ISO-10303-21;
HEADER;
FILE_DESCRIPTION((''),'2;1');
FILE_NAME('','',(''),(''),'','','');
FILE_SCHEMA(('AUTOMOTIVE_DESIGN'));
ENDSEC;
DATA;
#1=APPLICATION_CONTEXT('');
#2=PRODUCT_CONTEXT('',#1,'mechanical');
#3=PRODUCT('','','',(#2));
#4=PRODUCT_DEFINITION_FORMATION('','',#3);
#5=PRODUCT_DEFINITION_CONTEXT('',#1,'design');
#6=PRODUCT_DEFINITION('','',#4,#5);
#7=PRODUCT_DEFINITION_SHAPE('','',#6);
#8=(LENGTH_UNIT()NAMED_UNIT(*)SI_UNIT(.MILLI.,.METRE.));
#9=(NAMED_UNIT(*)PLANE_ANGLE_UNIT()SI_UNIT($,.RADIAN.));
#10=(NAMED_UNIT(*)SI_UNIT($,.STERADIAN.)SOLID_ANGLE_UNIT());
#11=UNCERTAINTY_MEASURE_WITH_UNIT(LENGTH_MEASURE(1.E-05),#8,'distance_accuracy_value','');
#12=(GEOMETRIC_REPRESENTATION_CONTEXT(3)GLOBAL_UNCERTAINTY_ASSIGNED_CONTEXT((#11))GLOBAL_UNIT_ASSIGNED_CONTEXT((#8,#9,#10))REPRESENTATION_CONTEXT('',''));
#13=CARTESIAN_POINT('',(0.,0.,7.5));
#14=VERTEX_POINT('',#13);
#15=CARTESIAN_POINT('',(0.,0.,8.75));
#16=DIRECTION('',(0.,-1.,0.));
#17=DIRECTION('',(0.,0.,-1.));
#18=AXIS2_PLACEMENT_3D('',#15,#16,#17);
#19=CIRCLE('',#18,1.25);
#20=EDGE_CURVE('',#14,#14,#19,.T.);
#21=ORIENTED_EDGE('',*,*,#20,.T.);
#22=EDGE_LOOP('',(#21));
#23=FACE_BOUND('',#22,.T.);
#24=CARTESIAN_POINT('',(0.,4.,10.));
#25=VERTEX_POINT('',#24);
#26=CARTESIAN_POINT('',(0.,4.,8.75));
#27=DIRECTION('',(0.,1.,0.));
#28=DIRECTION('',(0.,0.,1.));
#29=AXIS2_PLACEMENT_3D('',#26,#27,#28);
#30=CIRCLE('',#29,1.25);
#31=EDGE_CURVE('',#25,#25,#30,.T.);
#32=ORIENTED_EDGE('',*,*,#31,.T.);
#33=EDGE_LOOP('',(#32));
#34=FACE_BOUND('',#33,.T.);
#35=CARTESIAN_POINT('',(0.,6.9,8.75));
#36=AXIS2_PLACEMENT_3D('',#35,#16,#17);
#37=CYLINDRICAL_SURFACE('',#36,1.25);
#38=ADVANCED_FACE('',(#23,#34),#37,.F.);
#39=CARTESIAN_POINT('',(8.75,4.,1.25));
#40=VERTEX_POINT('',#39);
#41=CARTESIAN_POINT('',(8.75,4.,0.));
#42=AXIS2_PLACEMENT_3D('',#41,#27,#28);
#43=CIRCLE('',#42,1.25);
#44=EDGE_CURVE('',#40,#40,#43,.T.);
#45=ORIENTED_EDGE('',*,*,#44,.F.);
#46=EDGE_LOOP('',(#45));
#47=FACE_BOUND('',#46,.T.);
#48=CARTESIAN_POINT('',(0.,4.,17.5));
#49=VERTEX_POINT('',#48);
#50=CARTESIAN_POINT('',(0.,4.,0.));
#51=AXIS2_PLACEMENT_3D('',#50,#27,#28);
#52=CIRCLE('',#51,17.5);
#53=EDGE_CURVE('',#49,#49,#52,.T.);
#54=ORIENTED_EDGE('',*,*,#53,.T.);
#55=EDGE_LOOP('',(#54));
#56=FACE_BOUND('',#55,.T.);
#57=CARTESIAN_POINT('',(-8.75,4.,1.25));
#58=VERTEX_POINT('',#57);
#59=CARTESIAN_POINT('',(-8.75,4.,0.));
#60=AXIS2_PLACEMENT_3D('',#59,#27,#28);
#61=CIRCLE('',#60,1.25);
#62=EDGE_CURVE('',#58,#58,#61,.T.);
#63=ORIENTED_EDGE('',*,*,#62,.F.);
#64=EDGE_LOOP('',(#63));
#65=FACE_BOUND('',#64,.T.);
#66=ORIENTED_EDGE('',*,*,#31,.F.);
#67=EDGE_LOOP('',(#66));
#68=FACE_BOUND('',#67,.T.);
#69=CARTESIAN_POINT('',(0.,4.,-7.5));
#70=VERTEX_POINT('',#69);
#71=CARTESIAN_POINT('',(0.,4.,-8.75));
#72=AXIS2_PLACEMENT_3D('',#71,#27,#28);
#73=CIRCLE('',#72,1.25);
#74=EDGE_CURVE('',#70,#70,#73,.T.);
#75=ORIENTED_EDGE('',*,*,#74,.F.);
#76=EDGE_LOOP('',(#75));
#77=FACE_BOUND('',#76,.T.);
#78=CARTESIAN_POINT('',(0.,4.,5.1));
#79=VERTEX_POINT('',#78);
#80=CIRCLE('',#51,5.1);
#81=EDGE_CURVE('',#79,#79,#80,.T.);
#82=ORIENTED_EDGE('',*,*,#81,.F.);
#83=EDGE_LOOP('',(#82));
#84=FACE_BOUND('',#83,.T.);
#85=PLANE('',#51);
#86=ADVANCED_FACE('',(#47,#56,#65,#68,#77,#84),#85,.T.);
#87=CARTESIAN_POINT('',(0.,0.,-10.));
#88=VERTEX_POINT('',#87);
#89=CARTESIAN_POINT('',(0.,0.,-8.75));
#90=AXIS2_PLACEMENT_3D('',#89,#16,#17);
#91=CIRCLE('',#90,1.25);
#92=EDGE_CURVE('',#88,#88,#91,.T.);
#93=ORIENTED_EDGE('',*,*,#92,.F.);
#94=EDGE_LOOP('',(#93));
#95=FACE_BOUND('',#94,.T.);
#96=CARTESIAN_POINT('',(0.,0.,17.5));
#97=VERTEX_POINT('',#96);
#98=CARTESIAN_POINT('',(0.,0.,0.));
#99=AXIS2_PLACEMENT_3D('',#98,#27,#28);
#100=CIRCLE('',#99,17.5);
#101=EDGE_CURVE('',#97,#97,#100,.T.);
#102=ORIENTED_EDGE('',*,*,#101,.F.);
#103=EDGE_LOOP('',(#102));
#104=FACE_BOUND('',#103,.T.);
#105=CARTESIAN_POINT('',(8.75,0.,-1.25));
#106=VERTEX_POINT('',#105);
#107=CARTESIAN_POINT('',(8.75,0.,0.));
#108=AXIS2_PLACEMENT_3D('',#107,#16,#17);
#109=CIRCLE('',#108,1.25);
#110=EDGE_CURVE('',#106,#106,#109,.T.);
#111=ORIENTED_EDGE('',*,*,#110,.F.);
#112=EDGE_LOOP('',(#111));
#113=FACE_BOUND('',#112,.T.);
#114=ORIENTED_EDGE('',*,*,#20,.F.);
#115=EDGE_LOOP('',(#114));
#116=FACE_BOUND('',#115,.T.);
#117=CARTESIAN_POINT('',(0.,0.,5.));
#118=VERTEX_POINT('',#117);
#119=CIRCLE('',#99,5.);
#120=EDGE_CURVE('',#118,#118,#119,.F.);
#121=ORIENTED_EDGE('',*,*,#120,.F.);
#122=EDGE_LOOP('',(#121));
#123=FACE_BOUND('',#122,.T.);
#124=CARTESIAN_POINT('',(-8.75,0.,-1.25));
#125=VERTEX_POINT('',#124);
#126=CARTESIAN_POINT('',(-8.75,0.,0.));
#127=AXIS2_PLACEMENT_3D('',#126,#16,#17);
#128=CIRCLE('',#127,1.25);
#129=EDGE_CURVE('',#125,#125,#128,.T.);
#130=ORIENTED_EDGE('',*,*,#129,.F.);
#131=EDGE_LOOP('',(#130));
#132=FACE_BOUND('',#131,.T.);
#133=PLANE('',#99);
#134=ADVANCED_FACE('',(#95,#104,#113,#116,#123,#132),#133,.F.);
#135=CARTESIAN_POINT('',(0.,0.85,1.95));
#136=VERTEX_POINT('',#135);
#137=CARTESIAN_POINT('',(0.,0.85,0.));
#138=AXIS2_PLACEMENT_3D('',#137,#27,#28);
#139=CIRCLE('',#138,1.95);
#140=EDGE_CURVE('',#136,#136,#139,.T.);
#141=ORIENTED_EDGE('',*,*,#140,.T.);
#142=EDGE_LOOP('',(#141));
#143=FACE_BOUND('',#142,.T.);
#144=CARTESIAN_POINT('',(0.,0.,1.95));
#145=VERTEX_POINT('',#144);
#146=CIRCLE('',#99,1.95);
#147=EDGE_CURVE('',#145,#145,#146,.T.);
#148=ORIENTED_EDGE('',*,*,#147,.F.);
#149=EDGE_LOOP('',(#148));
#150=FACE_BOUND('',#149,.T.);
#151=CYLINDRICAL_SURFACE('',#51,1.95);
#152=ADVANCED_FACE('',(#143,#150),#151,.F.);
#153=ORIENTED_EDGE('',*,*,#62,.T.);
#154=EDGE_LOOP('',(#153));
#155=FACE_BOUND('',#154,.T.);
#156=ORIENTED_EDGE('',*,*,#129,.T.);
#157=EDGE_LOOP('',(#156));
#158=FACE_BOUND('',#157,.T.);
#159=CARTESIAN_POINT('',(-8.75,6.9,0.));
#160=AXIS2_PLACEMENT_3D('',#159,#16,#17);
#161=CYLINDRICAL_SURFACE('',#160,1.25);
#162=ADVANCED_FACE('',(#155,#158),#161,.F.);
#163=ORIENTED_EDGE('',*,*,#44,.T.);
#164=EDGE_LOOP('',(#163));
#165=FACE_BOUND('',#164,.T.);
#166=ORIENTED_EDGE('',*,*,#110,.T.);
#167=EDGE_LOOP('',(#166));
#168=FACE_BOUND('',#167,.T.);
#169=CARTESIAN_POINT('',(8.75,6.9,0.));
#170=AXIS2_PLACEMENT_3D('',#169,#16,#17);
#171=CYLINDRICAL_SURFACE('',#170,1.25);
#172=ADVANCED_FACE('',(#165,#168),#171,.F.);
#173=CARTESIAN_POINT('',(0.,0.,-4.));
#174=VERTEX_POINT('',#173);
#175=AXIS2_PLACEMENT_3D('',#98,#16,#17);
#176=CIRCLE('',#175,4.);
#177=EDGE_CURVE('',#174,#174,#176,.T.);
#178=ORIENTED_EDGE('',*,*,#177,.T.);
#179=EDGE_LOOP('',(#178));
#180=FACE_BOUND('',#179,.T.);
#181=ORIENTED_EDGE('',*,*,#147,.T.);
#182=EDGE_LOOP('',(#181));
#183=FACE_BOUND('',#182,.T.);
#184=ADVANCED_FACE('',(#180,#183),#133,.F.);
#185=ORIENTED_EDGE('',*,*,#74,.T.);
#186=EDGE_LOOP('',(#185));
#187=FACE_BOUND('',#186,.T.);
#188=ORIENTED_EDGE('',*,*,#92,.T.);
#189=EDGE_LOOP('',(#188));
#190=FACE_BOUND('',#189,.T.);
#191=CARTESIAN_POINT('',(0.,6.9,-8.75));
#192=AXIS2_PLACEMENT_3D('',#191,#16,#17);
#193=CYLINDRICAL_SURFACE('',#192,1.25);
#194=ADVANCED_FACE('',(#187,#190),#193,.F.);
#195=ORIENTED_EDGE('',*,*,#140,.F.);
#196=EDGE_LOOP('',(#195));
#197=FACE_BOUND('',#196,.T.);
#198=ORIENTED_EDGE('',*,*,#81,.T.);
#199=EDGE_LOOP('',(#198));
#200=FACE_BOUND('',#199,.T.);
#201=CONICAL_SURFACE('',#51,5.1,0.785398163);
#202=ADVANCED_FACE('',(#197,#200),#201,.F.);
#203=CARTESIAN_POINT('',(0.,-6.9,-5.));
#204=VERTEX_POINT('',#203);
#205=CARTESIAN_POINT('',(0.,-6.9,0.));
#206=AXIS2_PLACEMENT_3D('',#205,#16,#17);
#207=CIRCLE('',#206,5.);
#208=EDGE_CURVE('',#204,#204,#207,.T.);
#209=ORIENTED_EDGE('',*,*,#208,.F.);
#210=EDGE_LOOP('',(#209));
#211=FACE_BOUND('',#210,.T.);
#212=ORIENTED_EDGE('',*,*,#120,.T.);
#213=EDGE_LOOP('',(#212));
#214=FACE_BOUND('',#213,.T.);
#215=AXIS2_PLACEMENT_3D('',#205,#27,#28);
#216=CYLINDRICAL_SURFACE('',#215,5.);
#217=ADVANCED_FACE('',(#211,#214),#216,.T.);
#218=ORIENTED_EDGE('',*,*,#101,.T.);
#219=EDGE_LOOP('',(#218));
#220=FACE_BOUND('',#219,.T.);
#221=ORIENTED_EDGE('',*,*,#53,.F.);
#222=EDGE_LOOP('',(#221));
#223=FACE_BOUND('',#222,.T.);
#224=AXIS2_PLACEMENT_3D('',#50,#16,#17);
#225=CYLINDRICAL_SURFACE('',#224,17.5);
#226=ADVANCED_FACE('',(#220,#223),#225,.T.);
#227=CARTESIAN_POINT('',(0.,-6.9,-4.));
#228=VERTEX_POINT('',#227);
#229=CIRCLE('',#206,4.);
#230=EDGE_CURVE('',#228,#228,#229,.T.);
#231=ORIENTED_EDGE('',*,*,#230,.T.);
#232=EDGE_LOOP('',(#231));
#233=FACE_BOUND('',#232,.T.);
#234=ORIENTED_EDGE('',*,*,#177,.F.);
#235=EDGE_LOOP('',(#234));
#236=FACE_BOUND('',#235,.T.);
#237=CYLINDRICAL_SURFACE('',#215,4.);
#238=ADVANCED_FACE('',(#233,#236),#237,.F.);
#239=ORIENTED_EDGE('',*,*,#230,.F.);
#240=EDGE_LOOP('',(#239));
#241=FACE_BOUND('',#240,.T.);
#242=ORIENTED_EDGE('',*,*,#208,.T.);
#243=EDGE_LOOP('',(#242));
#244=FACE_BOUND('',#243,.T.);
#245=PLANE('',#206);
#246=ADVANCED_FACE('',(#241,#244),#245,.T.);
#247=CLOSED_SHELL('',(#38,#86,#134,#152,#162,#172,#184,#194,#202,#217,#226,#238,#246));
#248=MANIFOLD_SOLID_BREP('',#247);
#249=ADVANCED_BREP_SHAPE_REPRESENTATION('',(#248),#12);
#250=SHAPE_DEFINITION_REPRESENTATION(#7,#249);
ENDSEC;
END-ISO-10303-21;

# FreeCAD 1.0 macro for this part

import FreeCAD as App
import Part
import Sketcher
from FreeCAD import Vector
Q = App.Units.Quantity

doc = App.newDocument("Part")
body = doc.addObject("PartDesign::Body", "Body")

# Sketch on XZ plane
sketch1 = doc.addObject("Sketcher::SketchObject", "Sketch")
body.addObject(sketch1)
sketch1.AttachmentSupport = (doc.XZ_Plane, [""])
sketch1.MapMode = "FlatFace"
sketch1.addGeometry(Part.Circle(Vector(0, 0, 0), Vector(0, 0, 1), 18), False)
sketch1.addConstraint(Sketcher.Constraint("Coincident", 0, 3, -1, 1))
sketch1.addConstraint(Sketcher.Constraint("Diameter", 0, Q("35 mm")))
pad1 = doc.addObject("PartDesign::Pad", "Pad")
body.addObject(pad1)
pad1.Profile = sketch1
pad1.Length = 4
pad1.Reversed = True

# Sketch on XZ plane
sketch2 = doc.addObject("Sketcher::SketchObject", "Sketch001")
body.addObject(sketch2)
sketch2.AttachmentSupport = (doc.XZ_Plane, [""])
sketch2.MapMode = "FlatFace"
sketch2.addGeometry(Part.Circle(Vector(0, 0, 0), Vector(0, 0, 1), 5), False)
sketch2.addGeometry(Part.Circle(Vector(0, 0, 0), Vector(0, 0, 1), 4), False)
sketch2.addConstraint(Sketcher.Constraint("Coincident", 0, 3, -1, 1))
sketch2.addConstraint(Sketcher.Constraint("Coincident", 1, 3, -1, 1))
sketch2.addConstraint(Sketcher.Constraint("Diameter", 0, Q("10 mm")))
sketch2.addConstraint(Sketcher.Constraint("Diameter", 1, Q("8 mm")))
pad2 = doc.addObject("PartDesign::Pad", "Pad001")
body.addObject(pad2)
pad2.Profile = sketch2
pad2.Length = 6.9

# Sketch on XZ plane
sketch3 = doc.addObject("Sketcher::SketchObject", "Sketch002")
body.addObject(sketch3)
sketch3.AttachmentSupport = (doc.XZ_Plane, [""])
sketch3.MapMode = "FlatFace"
sketch3.addGeometry(Part.Circle(Vector(-8.8, 0, 0), Vector(0, 0, 1), 1.2), False)
sketch3.addGeometry(Part.Circle(Vector(8.8, 0, 0), Vector(0, 0, 1), 1.2), False)
sketch3.addConstraint(Sketcher.Constraint("Equal", 0, 1))
sketch3.addConstraint(Sketcher.Constraint("Symmetric", 0, 3, 1, 3, -1, 1))
sketch3.addConstraint(Sketcher.Constraint("PointOnObject", 0, 3, -1))
sketch3.addConstraint(Sketcher.Constraint("Diameter", 0, Q("2.5 mm")))
sketch3.addConstraint(Sketcher.Constraint("DistanceX", 0, 3, 1, 3, Q("17.5 mm")))
pocket1 = doc.addObject("PartDesign::Pocket", "Pocket")
body.addObject(pocket1)
pocket1.Profile = sketch3
pocket1.Length = 6.9

# Sketch on XZ plane
sketch4 = doc.addObject("Sketcher::SketchObject", "Sketch003")
body.addObject(sketch4)
sketch4.AttachmentSupport = (doc.XZ_Plane, [""])
sketch4.MapMode = "FlatFace"
sketch4.AttachmentOffset = App.Placement(Vector(0, 0, -4), App.Rotation())
sketch4.addGeometry(Part.Circle(Vector(0, 0, 0), Vector(0, 0, 1), 1.9), False)
sketch4.addConstraint(Sketcher.Constraint("Coincident", 0, 3, -1, 1))
sketch4.addConstraint(Sketcher.Constraint("Diameter", 0, Q("3.9 mm")))
doc.recompute()
hole = doc.addObject("PartDesign::Hole", "Hole")
body.addObject(hole)
hole.Profile = sketch4
hole.ThreadType = "None"
hole.Diameter = 3.9
hole.DepthType = "ThroughAll"
hole.HoleCutType = "Countersink"
hole.HoleCutDiameter = 10.2
hole.HoleCutCountersinkAngle = 90
hole.Reversed = True

# Sketch on XZ plane
sketch5 = doc.addObject("Sketcher::SketchObject", "Sketch004")
body.addObject(sketch5)
sketch5.AttachmentSupport = (doc.XZ_Plane, [""])
sketch5.MapMode = "FlatFace"
sketch5.addGeometry(Part.Circle(Vector(0, 8.8, 0), Vector(0, 0, 1), 1.2), False)
sketch5.addGeometry(Part.Circle(Vector(0, -8.8, 0), Vector(0, 0, 1), 1.2), False)
sketch5.addConstraint(Sketcher.Constraint("Equal", 0, 1))
sketch5.addConstraint(Sketcher.Constraint("Symmetric", 0, 3, 1, 3, -1, 1))
sketch5.addConstraint(Sketcher.Constraint("PointOnObject", 0, 3, -2))
sketch5.addConstraint(Sketcher.Constraint("Diameter", 0, Q("2.5 mm")))
sketch5.addConstraint(Sketcher.Constraint("DistanceY", 1, 3, 0, 3, Q("17.5 mm")))
pocket2 = doc.addObject("PartDesign::Pocket", "Pocket001")
body.addObject(pocket2)
pocket2.Profile = sketch5
pocket2.Length = 6.9

doc.recompute()
